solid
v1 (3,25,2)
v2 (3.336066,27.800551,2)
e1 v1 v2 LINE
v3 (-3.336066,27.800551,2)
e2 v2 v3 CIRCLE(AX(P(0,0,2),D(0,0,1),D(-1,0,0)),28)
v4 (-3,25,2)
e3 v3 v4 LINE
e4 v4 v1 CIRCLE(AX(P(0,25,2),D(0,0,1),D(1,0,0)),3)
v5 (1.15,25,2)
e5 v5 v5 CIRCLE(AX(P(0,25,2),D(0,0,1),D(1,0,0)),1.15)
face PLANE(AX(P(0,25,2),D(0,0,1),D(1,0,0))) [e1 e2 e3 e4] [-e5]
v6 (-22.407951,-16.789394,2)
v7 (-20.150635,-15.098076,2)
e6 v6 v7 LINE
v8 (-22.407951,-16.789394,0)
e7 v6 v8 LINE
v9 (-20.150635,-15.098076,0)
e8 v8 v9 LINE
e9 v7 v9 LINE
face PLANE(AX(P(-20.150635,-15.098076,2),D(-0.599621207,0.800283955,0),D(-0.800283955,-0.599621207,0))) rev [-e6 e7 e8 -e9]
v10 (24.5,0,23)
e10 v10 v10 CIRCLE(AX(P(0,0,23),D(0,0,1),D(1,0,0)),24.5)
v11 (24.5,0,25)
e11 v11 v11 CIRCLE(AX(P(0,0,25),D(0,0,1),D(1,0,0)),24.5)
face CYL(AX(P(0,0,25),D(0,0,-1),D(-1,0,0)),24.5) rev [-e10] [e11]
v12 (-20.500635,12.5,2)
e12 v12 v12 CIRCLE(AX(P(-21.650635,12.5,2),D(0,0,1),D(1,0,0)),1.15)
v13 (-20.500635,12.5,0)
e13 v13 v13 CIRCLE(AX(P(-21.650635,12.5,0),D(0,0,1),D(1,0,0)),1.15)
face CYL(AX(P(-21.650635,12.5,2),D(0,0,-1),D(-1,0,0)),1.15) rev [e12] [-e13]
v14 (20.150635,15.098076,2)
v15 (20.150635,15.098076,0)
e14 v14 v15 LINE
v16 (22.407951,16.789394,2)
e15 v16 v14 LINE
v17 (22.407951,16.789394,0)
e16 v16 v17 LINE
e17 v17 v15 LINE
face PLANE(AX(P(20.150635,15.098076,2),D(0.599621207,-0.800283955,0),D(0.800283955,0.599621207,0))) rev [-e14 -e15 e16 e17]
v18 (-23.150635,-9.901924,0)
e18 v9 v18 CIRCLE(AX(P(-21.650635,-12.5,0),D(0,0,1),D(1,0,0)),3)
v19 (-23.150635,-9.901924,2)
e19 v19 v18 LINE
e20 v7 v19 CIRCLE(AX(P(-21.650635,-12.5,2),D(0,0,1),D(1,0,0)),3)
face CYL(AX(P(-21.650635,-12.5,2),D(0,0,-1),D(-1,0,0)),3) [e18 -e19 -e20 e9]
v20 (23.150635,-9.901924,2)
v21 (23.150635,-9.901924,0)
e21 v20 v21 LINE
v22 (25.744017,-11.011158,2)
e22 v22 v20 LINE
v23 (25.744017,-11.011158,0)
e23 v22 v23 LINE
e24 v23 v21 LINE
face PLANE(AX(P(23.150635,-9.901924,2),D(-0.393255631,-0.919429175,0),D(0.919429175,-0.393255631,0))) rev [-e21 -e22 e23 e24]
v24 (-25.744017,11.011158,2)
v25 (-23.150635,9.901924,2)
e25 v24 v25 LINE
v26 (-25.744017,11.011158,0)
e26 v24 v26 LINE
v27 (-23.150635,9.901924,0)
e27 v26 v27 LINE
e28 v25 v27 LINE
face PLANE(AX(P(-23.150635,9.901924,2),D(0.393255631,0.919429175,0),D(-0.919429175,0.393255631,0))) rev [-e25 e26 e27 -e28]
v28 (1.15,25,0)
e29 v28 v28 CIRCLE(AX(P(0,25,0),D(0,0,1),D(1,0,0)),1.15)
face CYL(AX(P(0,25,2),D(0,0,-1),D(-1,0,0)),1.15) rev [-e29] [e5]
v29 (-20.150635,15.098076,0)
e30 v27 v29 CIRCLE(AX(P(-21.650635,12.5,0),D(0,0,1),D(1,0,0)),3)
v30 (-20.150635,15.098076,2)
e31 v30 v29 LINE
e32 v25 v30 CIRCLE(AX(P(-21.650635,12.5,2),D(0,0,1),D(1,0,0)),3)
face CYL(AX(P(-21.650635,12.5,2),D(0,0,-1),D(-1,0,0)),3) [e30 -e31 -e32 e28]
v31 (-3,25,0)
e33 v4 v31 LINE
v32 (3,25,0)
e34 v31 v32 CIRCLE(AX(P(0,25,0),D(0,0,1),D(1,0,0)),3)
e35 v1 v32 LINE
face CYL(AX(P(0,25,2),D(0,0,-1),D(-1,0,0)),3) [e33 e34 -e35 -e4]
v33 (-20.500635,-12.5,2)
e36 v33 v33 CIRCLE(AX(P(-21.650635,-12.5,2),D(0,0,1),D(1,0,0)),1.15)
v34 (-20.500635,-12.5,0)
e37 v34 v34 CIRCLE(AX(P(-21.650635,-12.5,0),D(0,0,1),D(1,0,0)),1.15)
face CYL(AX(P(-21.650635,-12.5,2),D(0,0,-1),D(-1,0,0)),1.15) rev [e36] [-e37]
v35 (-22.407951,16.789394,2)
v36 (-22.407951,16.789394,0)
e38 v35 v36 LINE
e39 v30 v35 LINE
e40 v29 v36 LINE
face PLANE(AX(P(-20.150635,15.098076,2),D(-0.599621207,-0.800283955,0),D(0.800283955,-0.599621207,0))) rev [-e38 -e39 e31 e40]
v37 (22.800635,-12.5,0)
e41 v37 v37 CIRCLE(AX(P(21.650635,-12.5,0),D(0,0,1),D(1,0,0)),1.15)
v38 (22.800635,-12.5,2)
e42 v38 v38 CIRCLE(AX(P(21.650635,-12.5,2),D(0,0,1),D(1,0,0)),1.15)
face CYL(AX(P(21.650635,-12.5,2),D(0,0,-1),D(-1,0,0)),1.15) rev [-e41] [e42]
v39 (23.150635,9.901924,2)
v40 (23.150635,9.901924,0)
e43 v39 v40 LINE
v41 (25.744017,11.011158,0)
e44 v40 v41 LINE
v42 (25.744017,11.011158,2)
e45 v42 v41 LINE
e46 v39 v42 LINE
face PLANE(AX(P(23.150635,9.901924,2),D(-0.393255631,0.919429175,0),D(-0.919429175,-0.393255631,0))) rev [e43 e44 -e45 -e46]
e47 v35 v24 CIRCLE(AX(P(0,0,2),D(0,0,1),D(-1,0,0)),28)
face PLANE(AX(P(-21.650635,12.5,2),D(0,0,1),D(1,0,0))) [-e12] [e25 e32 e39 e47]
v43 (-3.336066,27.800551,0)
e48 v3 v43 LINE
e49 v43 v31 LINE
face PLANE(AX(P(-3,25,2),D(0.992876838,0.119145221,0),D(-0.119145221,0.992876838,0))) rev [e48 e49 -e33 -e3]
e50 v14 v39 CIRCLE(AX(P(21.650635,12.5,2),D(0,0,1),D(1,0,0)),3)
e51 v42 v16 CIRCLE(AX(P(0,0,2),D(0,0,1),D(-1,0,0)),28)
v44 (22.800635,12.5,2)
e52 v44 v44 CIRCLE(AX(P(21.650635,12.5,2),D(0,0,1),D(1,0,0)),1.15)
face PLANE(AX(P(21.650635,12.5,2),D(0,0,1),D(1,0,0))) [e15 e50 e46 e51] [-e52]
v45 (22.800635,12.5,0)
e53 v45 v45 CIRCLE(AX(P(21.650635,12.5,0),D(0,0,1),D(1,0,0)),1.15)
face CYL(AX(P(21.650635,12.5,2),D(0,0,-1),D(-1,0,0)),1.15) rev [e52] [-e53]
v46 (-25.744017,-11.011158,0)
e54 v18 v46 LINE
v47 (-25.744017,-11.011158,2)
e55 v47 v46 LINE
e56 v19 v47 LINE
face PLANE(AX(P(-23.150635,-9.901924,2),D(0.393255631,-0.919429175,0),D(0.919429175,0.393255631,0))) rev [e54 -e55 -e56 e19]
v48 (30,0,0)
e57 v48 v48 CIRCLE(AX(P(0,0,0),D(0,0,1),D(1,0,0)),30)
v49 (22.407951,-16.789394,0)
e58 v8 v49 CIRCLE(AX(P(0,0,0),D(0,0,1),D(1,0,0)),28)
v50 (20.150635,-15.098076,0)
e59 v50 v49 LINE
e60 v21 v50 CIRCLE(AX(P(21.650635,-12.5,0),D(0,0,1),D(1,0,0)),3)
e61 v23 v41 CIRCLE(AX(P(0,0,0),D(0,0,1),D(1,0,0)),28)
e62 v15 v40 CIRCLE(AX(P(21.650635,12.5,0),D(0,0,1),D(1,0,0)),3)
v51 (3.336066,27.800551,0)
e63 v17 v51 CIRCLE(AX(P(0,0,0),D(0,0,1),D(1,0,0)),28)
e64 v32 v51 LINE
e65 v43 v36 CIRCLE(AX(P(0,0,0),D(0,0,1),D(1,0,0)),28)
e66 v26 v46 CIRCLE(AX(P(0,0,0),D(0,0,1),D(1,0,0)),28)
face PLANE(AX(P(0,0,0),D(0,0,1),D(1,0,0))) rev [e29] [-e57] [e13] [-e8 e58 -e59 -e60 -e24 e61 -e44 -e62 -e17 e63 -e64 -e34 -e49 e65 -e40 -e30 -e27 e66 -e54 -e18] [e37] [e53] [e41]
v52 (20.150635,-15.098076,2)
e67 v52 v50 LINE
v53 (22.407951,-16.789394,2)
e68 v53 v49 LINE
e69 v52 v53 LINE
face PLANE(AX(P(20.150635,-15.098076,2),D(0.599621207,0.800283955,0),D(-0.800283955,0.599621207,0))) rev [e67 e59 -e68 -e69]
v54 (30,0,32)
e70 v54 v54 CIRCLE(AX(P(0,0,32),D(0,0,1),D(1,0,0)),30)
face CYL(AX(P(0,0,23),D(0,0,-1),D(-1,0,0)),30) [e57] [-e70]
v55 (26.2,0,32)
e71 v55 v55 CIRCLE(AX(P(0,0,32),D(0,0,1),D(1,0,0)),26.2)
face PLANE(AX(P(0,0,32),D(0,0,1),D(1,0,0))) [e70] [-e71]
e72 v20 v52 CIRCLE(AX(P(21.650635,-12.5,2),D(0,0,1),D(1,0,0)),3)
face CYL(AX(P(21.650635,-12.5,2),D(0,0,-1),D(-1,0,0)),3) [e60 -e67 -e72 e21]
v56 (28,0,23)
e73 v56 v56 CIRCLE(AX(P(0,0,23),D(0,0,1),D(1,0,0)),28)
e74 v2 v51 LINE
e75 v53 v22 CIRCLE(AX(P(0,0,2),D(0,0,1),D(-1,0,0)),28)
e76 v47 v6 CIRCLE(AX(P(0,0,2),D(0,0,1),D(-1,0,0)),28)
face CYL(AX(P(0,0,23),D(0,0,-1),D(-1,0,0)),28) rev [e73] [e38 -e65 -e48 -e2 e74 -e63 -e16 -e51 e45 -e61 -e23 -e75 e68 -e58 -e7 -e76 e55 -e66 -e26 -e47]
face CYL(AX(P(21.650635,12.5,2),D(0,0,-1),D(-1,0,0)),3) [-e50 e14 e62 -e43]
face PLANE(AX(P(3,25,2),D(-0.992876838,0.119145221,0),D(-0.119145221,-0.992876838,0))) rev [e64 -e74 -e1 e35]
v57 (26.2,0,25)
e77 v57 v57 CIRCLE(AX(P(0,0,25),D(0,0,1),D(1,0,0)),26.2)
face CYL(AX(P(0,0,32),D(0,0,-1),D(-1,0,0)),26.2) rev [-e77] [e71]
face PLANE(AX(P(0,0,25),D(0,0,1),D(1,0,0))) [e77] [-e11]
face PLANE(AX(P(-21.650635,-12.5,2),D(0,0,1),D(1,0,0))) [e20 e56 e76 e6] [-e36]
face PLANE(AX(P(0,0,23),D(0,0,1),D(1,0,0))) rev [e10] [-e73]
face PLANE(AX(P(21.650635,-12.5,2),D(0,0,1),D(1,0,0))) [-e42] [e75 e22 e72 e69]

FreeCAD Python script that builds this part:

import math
import FreeCAD as App
import Part
import Sketcher

V = App.Vector
Q = App.Units.Quantity

doc = App.newDocument("Part")
params = doc.addObject("Spreadsheet::Sheet", "Params")
for row, (alias, value) in enumerate([
    ("sketch1_diameter", "60 mm"),
    ("sketch1_diameter2", "56 mm"),
    ("pad1_length", "23 mm"),
    ("sketch2_radius", "3 mm"),
    ("sketch2_radius2", "28 mm"),
    ("sketch2_diameter", "2.3 mm"),
    ("pad2_length", "2 mm"),
    ("sketch3_diameter", "60 mm"),
    ("sketch3_diameter2", "49 mm"),
    ("pad3_length", "2 mm"),
    ("sketch4_diameter", "60 mm"),
    ("sketch4_diameter2", "52.4 mm"),
    ("pad4_length", "7 mm"),
], start=1):
    params.set(f"A{row}", alias)
    params.set(f"B{row}", "=" + value)
    params.setAlias(f"B{row}", alias)

body = doc.addObject("PartDesign::Body", "Body")

# Sketch on XY plane
sketch1 = body.newObject("Sketcher::SketchObject", "Sketch")
sketch1.AttachmentSupport = (doc.getObject("XY_Plane"), [""])
sketch1.MapMode = "FlatFace"
sketch1.addGeometry(Part.Circle(V(0, 0, 0), V(0, 0, 1), 30), False)
sketch1.addGeometry(Part.Circle(V(0, 0, 0), V(0, 0, 1), 28), False)
sketch1.addConstraint(Sketcher.Constraint("Coincident", 0, 3, -1, 1))
sketch1.addConstraint(Sketcher.Constraint("Coincident", 1, 3, -1, 1))
sketch1.addConstraint(Sketcher.Constraint("Diameter", 0, Q("60 mm")))
sketch1.addConstraint(Sketcher.Constraint("Diameter", 1, Q("56 mm")))
sketch1.setExpression("Constraints[2]", "Params.sketch1_diameter")
sketch1.setExpression("Constraints[3]", "Params.sketch1_diameter2")
pad1 = body.newObject("PartDesign::Pad", "Pad")
pad1.Profile = sketch1
pad1.setExpression("Length", "Params.pad1_length")

# Sketch on XY plane
sketch2 = body.newObject("Sketcher::SketchObject", "Sketch001")
sketch2.AttachmentSupport = (doc.getObject("XY_Plane"), [""])
sketch2.MapMode = "FlatFace"
sketch2.addGeometry(Part.LineSegment(V(-3.336066, 27.800551, 0), V(-3, 25, 0)), False)
sketch2.addGeometry(Part.ArcOfCircle(Part.Circle(V(0, 25, 0), V(0, 0, 1), 3), math.radians(180), math.radians(360)), False)
sketch2.addGeometry(Part.LineSegment(V(3, 25, 0), V(3.336066, 27.800551, 0)), False)
sketch2.addGeometry(Part.ArcOfCircle(Part.Circle(V(0, 0, 0), V(0, 0, 1), 28), math.radians(83.157227), math.radians(96.842773)), False)
sketch2.addGeometry(Part.Circle(V(0, 25, 0), V(0, 0, 1), 1.15), False)
sketch2.addGeometry(Part.LineSegment(V(22.407951, 16.789394, 0), V(20.150635, 15.098076, 0)), False)
sketch2.addGeometry(Part.ArcOfCircle(Part.Circle(V(21.650635, 12.5, 0), V(0, 0, 1), 3), math.radians(120), math.radians(300)), False)
sketch2.addGeometry(Part.LineSegment(V(23.150635, 9.901924, 0), V(25.744017, 11.011158, 0)), False)
sketch2.addGeometry(Part.ArcOfCircle(Part.Circle(V(0, 0, 0), V(0, 0, 1), 28), math.radians(23.157227), math.radians(36.842773)), False)
sketch2.addGeometry(Part.Circle(V(21.650635, 12.5, 0), V(0, 0, 1), 1.15), False)
sketch2.addGeometry(Part.LineSegment(V(25.744017, -11.011158, 0), V(23.150635, -9.901924, 0)), False)
sketch2.addGeometry(Part.ArcOfCircle(Part.Circle(V(21.650635, -12.5, 0), V(0, 0, 1), 3), math.radians(60), math.radians(240)), False)
sketch2.addGeometry(Part.LineSegment(V(20.150635, -15.098076, 0), V(22.407951, -16.789394, 0)), False)
sketch2.addGeometry(Part.ArcOfCircle(Part.Circle(V(0, 0, 0), V(0, 0, 1), 28), math.radians(-36.842773), math.radians(-23.157227)), False)
sketch2.addGeometry(Part.Circle(V(21.650635, -12.5, 0), V(0, 0, 1), 1.15), False)
sketch2.addGeometry(Part.LineSegment(V(-22.407951, -16.789394, 0), V(-20.150635, -15.098076, 0)), False)
sketch2.addGeometry(Part.ArcOfCircle(Part.Circle(V(-21.650635, -12.5, 0), V(0, 0, 1), 3), math.radians(-60), math.radians(120)), False)
sketch2.addGeometry(Part.LineSegment(V(-23.150635, -9.901924, 0), V(-25.744017, -11.011158, 0)), False)
sketch2.addGeometry(Part.ArcOfCircle(Part.Circle(V(0, 0, 0), V(0, 0, 1), 28), math.radians(-156.842773), math.radians(-143.157227)), False)
sketch2.addGeometry(Part.Circle(V(-21.650635, -12.5, 0), V(0, 0, 1), 1.15), False)
sketch2.addGeometry(Part.LineSegment(V(-25.744017, 11.011158, 0), V(-23.150635, 9.901924, 0)), False)
sketch2.addGeometry(Part.ArcOfCircle(Part.Circle(V(-21.650635, 12.5, 0), V(0, 0, 1), 3), math.radians(-120), math.radians(60)), False)
sketch2.addGeometry(Part.LineSegment(V(-20.150635, 15.098076, 0), V(-22.407951, 16.789394, 0)), False)
sketch2.addGeometry(Part.ArcOfCircle(Part.Circle(V(0, 0, 0), V(0, 0, 1), 28), math.radians(143.157227), math.radians(156.842773)), False)
sketch2.addGeometry(Part.Circle(V(-21.650635, 12.5, 0), V(0, 0, 1), 1.15), False)
sketch2.addConstraint(Sketcher.Constraint("Coincident", 0, 2, 1, 1))
sketch2.addConstraint(Sketcher.Constraint("Coincident", 1, 2, 2, 1))
sketch2.addConstraint(Sketcher.Constraint("Coincident", 2, 2, 3, 1))
sketch2.addConstraint(Sketcher.Constraint("Coincident", 3, 2, 0, 1))
sketch2.addConstraint(Sketcher.Constraint("Coincident", 5, 2, 6, 1))
sketch2.addConstraint(Sketcher.Constraint("Coincident", 6, 2, 7, 1))
sketch2.addConstraint(Sketcher.Constraint("Coincident", 7, 2, 8, 1))
sketch2.addConstraint(Sketcher.Constraint("Coincident", 8, 2, 5, 1))
sketch2.addConstraint(Sketcher.Constraint("Coincident", 10, 2, 11, 1))
sketch2.addConstraint(Sketcher.Constraint("Coincident", 11, 2, 12, 1))
sketch2.addConstraint(Sketcher.Constraint("Coincident", 12, 2, 13, 1))
sketch2.addConstraint(Sketcher.Constraint("Coincident", 13, 2, 10, 1))
sketch2.addConstraint(Sketcher.Constraint("Coincident", 15, 2, 16, 1))
sketch2.addConstraint(Sketcher.Constraint("Coincident", 16, 2, 17, 1))
sketch2.addConstraint(Sketcher.Constraint("Coincident", 17, 2, 18, 1))
sketch2.addConstraint(Sketcher.Constraint("Coincident", 18, 2, 15, 1))
sketch2.addConstraint(Sketcher.Constraint("Coincident", 20, 2, 21, 1))
sketch2.addConstraint(Sketcher.Constraint("Coincident", 21, 2, 22, 1))
sketch2.addConstraint(Sketcher.Constraint("Coincident", 22, 2, 23, 1))
sketch2.addConstraint(Sketcher.Constraint("Coincident", 23, 2, 20, 1))
sketch2.addConstraint(Sketcher.Constraint("Coincident", 3, 3, -1, 1))
sketch2.addConstraint(Sketcher.Constraint("Coincident", 8, 3, -1, 1))
sketch2.addConstraint(Sketcher.Constraint("Coincident", 13, 3, -1, 1))
sketch2.addConstraint(Sketcher.Constraint("Coincident", 18, 3, -1, 1))
sketch2.addConstraint(Sketcher.Constraint("Coincident", 23, 3, -1, 1))
sketch2.addConstraint(Sketcher.Constraint("Coincident", 4, 3, 1, 3))
sketch2.addConstraint(Sketcher.Constraint("Coincident", 9, 3, 6, 3))
sketch2.addConstraint(Sketcher.Constraint("Coincident", 14, 3, 11, 3))
sketch2.addConstraint(Sketcher.Constraint("Coincident", 19, 3, 16, 3))
sketch2.addConstraint(Sketcher.Constraint("Coincident", 24, 3, 21, 3))
sketch2.addConstraint(Sketcher.Constraint("Equal", 1, 6))
sketch2.addConstraint(Sketcher.Constraint("Equal", 3, 8))
sketch2.addConstraint(Sketcher.Constraint("Equal", 4, 9))
sketch2.addConstraint(Sketcher.Constraint("Equal", 6, 11))
sketch2.addConstraint(Sketcher.Constraint("Equal", 8, 13))
sketch2.addConstraint(Sketcher.Constraint("Equal", 9, 14))
sketch2.addConstraint(Sketcher.Constraint("Equal", 11, 16))
sketch2.addConstraint(Sketcher.Constraint("Equal", 13, 18))
sketch2.addConstraint(Sketcher.Constraint("Equal", 14, 19))
sketch2.addConstraint(Sketcher.Constraint("Equal", 16, 21))
sketch2.addConstraint(Sketcher.Constraint("Equal", 18, 23))
sketch2.addConstraint(Sketcher.Constraint("Equal", 19, 24))
sketch2.addConstraint(Sketcher.Constraint("Symmetric", 6, 3, 16, 3, -1, 1))
sketch2.addConstraint(Sketcher.Constraint("Symmetric", 11, 3, 21, 3, -1, 1))
sketch2.addConstraint(Sketcher.Constraint("Symmetric", 11, 3, 16, 3, -2))
sketch2.addConstraint(Sketcher.Constraint("Symmetric", 0, 2, 1, 2, -2))
sketch2.addConstraint(Sketcher.Constraint("Parallel", 5, 15))
sketch2.addConstraint(Sketcher.Constraint("Parallel", 7, 17))
sketch2.addConstraint(Sketcher.Constraint("Parallel", 10, 20))
sketch2.addConstraint(Sketcher.Constraint("Parallel", 12, 22))
sketch2.addConstraint(Sketcher.Constraint("Horizontal", 4, 3, 0, 2))
sketch2.addConstraint(Sketcher.Constraint("Horizontal", 2, 2, 3, 2))
sketch2.addConstraint(Sketcher.Constraint("Horizontal", 11, 2, 15, 2))
sketch2.addConstraint(Sketcher.Constraint("Horizontal", 10, 2, 16, 2))
sketch2.addConstraint(Sketcher.Constraint("Horizontal", 13, 2, 17, 2))
sketch2.addConstraint(Sketcher.Constraint("Horizontal", 12, 2, 18, 2))
sketch2.addConstraint(Sketcher.Constraint("Horizontal", 6, 2, 20, 2))
sketch2.addConstraint(Sketcher.Constraint("Horizontal", 5, 2, 21, 2))
sketch2.addConstraint(Sketcher.Constraint("Vertical", 6, 2, 10, 2))
sketch2.addConstraint(Sketcher.Constraint("Vertical", 5, 2, 11, 2))
sketch2.addConstraint(Sketcher.Constraint("Equal", 2, 5))
sketch2.addConstraint(Sketcher.Constraint("Equal", 5, 7))
sketch2.addConstraint(Sketcher.Constraint("Radius", 1, Q("3 mm")))
sketch2.addConstraint(Sketcher.Constraint("Radius", 3, Q("28 mm")))
sketch2.addConstraint(Sketcher.Constraint("Diameter", 4, Q("2.3 mm")))
sketch2.addConstraint(Sketcher.Constraint("DistanceY", -1, 1, 1, 3, Q("25 mm")))
sketch2.addConstraint(Sketcher.Constraint("DistanceY", 11, 3, 6, 3, Q("25 mm")))
sketch2.addConstraint(Sketcher.Constraint("DistanceX", 5, 2, 6, 2, Q("3 mm")))
sketch2.addConstraint(Sketcher.Constraint("DistanceY", -1, 1, 2, 2, Q("27.800551 mm")))
sketch2.addConstraint(Sketcher.Constraint("DistanceX", -1, 1, 8, 2, Q("22.407951 mm")))
sketch2.addConstraint(Sketcher.Constraint("DistanceX", 6, 2, 7, 2, Q("2.593382 mm")))
sketch2.setExpression("Constraints[62]", "Params.sketch2_radius")
sketch2.setExpression("Constraints[63]", "Params.sketch2_radius2")
sketch2.setExpression("Constraints[64]", "Params.sketch2_diameter")
pad2 = body.newObject("PartDesign::Pad", "Pad001")
pad2.Profile = sketch2
pad2.setExpression("Length", "Params.pad2_length")

# Sketch on XY plane
sketch3 = body.newObject("Sketcher::SketchObject", "Sketch002")
sketch3.AttachmentSupport = (doc.getObject("XY_Plane"), [""])
sketch3.MapMode = "FlatFace"
sketch3.AttachmentOffset = App.Placement(V(0, 0, 23), App.Rotation())
sketch3.addGeometry(Part.Circle(V(0, 0, 0), V(0, 0, 1), 30), False)
sketch3.addGeometry(Part.Circle(V(0, 0, 0), V(0, 0, 1), 24.5), False)
sketch3.addConstraint(Sketcher.Constraint("Coincident", 0, 3, -1, 1))
sketch3.addConstraint(Sketcher.Constraint("Coincident", 1, 3, -1, 1))
sketch3.addConstraint(Sketcher.Constraint("Diameter", 0, Q("60 mm")))
sketch3.addConstraint(Sketcher.Constraint("Diameter", 1, Q("49 mm")))
sketch3.setExpression("Constraints[2]", "Params.sketch3_diameter")
sketch3.setExpression("Constraints[3]", "Params.sketch3_diameter2")
pad3 = body.newObject("PartDesign::Pad", "Pad002")
pad3.Profile = sketch3
pad3.setExpression("Length", "Params.pad3_length")

# Sketch on XY plane
sketch4 = body.newObject("Sketcher::SketchObject", "Sketch003")
sketch4.AttachmentSupport = (doc.getObject("XY_Plane"), [""])
sketch4.MapMode = "FlatFace"
sketch4.AttachmentOffset = App.Placement(V(0, 0, 25), App.Rotation())
sketch4.addGeometry(Part.Circle(V(0, 0, 0), V(0, 0, 1), 30), False)
sketch4.addGeometry(Part.Circle(V(0, 0, 0), V(0, 0, 1), 26.2), False)
sketch4.addConstraint(Sketcher.Constraint("Coincident", 0, 3, -1, 1))
sketch4.addConstraint(Sketcher.Constraint("Coincident", 1, 3, -1, 1))
sketch4.addConstraint(Sketcher.Constraint("Diameter", 0, Q("60 mm")))
sketch4.addConstraint(Sketcher.Constraint("Diameter", 1, Q("52.4 mm")))
sketch4.setExpression("Constraints[2]", "Params.sketch4_diameter")
sketch4.setExpression("Constraints[3]", "Params.sketch4_diameter2")
pad4 = body.newObject("PartDesign::Pad", "Pad003")
pad4.Profile = sketch4
pad4.setExpression("Length", "Params.pad4_length")

doc.recompute()
